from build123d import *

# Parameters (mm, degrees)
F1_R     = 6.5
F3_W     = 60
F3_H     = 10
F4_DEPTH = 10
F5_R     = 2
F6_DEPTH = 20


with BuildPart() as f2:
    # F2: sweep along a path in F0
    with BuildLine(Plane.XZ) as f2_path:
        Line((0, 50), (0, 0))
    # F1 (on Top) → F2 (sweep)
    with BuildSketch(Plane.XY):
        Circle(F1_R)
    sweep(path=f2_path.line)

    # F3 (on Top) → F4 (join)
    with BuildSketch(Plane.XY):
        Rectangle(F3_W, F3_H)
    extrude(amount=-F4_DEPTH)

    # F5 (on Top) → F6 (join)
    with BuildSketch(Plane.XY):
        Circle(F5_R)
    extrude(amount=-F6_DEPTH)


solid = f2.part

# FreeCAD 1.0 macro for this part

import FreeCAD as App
import Part
import Sketcher


def add_polygon(sketch, points):
    """Adds a closed chain of lines whose ends are joined by coincident constraints."""
    first, n = sketch.GeometryCount, len(points)
    for a, b in zip(points, points[1:] + points[:1]):
        sketch.addGeometry(Part.LineSegment(App.Vector(*a, 0), App.Vector(*b, 0)), False)
    for i in range(n):
        sketch.addConstraint(Sketcher.Constraint("Coincident", first + i, 2, first + (i + 1) % n, 1))

doc = App.newDocument("Part")
body = doc.addObject("PartDesign::Body", "Body")

sketch1 = body.newObject("Sketcher::SketchObject", "Sketch")
sketch1.AttachmentSupport = (doc.getObject("XY_Plane"), [""])
sketch1.MapMode = "FlatFace"
sketch1.addGeometry(Part.Circle(App.Vector(0, 0, 0), App.Vector(0, 0, 1), 6.5), False)
sketch1.addConstraint([
    Sketcher.Constraint("Coincident", 0, 3, -1, 1),
    Sketcher.Constraint("Diameter", 0, 13.0),
])

sketch2 = body.newObject("Sketcher::SketchObject", "Sketch001")
sketch2.AttachmentSupport = (doc.getObject("XZ_Plane"), [""])
sketch2.MapMode = "FlatFace"
sketch2.addGeometry(Part.LineSegment(App.Vector(0, 50, 0), App.Vector(0, 0, 0)), False)
sketch2.addConstraint([
    Sketcher.Constraint("Vertical", 0),
    Sketcher.Constraint("Coincident", 0, 2, -1, 1),
    Sketcher.Constraint("DistanceY", 0, 2, 0, 1, 50.0),
])
doc.recompute()

additivepipe = body.newObject("PartDesign::AdditivePipe", "AdditivePipe")
additivepipe.Profile = sketch1
additivepipe.Spine = (sketch2, ["Edge1"])

sketch3 = body.newObject("Sketcher::SketchObject", "Sketch002")
sketch3.AttachmentSupport = (doc.getObject("XY_Plane"), [""])
sketch3.MapMode = "FlatFace"
add_polygon(sketch3, [(-30, 5), (-30, -5), (30, -5), (30, 5)])
sketch3.addConstraint([
    Sketcher.Constraint("Vertical", 0),
    Sketcher.Constraint("Horizontal", 1),
    Sketcher.Constraint("Vertical", 2),
    Sketcher.Constraint("Horizontal", 3),
    Sketcher.Constraint("Symmetric", 0, 2, 2, 2, -1, 1),
    Sketcher.Constraint("DistanceX", 1, 1, 1, 2, 60.0),
    Sketcher.Constraint("DistanceY", 0, 2, 0, 1, 10.0),
])
pad1 = body.newObject("PartDesign::Pad", "Pad")
pad1.Profile = sketch3
pad1.Length = 10
pad1.Reversed = True

sketch4 = body.newObject("Sketcher::SketchObject", "Sketch003")
sketch4.AttachmentSupport = (doc.getObject("XY_Plane"), [""])
sketch4.MapMode = "FlatFace"
sketch4.addGeometry(Part.Circle(App.Vector(0, 0, 0), App.Vector(0, 0, 1), 2), False)
sketch4.addConstraint([
    Sketcher.Constraint("Coincident", 0, 3, -1, 1),
    Sketcher.Constraint("Diameter", 0, 4.0),
])
pad2 = body.newObject("PartDesign::Pad", "Pad001")
pad2.Profile = sketch4
pad2.Length = 20
pad2.Reversed = True

doc.recompute()
